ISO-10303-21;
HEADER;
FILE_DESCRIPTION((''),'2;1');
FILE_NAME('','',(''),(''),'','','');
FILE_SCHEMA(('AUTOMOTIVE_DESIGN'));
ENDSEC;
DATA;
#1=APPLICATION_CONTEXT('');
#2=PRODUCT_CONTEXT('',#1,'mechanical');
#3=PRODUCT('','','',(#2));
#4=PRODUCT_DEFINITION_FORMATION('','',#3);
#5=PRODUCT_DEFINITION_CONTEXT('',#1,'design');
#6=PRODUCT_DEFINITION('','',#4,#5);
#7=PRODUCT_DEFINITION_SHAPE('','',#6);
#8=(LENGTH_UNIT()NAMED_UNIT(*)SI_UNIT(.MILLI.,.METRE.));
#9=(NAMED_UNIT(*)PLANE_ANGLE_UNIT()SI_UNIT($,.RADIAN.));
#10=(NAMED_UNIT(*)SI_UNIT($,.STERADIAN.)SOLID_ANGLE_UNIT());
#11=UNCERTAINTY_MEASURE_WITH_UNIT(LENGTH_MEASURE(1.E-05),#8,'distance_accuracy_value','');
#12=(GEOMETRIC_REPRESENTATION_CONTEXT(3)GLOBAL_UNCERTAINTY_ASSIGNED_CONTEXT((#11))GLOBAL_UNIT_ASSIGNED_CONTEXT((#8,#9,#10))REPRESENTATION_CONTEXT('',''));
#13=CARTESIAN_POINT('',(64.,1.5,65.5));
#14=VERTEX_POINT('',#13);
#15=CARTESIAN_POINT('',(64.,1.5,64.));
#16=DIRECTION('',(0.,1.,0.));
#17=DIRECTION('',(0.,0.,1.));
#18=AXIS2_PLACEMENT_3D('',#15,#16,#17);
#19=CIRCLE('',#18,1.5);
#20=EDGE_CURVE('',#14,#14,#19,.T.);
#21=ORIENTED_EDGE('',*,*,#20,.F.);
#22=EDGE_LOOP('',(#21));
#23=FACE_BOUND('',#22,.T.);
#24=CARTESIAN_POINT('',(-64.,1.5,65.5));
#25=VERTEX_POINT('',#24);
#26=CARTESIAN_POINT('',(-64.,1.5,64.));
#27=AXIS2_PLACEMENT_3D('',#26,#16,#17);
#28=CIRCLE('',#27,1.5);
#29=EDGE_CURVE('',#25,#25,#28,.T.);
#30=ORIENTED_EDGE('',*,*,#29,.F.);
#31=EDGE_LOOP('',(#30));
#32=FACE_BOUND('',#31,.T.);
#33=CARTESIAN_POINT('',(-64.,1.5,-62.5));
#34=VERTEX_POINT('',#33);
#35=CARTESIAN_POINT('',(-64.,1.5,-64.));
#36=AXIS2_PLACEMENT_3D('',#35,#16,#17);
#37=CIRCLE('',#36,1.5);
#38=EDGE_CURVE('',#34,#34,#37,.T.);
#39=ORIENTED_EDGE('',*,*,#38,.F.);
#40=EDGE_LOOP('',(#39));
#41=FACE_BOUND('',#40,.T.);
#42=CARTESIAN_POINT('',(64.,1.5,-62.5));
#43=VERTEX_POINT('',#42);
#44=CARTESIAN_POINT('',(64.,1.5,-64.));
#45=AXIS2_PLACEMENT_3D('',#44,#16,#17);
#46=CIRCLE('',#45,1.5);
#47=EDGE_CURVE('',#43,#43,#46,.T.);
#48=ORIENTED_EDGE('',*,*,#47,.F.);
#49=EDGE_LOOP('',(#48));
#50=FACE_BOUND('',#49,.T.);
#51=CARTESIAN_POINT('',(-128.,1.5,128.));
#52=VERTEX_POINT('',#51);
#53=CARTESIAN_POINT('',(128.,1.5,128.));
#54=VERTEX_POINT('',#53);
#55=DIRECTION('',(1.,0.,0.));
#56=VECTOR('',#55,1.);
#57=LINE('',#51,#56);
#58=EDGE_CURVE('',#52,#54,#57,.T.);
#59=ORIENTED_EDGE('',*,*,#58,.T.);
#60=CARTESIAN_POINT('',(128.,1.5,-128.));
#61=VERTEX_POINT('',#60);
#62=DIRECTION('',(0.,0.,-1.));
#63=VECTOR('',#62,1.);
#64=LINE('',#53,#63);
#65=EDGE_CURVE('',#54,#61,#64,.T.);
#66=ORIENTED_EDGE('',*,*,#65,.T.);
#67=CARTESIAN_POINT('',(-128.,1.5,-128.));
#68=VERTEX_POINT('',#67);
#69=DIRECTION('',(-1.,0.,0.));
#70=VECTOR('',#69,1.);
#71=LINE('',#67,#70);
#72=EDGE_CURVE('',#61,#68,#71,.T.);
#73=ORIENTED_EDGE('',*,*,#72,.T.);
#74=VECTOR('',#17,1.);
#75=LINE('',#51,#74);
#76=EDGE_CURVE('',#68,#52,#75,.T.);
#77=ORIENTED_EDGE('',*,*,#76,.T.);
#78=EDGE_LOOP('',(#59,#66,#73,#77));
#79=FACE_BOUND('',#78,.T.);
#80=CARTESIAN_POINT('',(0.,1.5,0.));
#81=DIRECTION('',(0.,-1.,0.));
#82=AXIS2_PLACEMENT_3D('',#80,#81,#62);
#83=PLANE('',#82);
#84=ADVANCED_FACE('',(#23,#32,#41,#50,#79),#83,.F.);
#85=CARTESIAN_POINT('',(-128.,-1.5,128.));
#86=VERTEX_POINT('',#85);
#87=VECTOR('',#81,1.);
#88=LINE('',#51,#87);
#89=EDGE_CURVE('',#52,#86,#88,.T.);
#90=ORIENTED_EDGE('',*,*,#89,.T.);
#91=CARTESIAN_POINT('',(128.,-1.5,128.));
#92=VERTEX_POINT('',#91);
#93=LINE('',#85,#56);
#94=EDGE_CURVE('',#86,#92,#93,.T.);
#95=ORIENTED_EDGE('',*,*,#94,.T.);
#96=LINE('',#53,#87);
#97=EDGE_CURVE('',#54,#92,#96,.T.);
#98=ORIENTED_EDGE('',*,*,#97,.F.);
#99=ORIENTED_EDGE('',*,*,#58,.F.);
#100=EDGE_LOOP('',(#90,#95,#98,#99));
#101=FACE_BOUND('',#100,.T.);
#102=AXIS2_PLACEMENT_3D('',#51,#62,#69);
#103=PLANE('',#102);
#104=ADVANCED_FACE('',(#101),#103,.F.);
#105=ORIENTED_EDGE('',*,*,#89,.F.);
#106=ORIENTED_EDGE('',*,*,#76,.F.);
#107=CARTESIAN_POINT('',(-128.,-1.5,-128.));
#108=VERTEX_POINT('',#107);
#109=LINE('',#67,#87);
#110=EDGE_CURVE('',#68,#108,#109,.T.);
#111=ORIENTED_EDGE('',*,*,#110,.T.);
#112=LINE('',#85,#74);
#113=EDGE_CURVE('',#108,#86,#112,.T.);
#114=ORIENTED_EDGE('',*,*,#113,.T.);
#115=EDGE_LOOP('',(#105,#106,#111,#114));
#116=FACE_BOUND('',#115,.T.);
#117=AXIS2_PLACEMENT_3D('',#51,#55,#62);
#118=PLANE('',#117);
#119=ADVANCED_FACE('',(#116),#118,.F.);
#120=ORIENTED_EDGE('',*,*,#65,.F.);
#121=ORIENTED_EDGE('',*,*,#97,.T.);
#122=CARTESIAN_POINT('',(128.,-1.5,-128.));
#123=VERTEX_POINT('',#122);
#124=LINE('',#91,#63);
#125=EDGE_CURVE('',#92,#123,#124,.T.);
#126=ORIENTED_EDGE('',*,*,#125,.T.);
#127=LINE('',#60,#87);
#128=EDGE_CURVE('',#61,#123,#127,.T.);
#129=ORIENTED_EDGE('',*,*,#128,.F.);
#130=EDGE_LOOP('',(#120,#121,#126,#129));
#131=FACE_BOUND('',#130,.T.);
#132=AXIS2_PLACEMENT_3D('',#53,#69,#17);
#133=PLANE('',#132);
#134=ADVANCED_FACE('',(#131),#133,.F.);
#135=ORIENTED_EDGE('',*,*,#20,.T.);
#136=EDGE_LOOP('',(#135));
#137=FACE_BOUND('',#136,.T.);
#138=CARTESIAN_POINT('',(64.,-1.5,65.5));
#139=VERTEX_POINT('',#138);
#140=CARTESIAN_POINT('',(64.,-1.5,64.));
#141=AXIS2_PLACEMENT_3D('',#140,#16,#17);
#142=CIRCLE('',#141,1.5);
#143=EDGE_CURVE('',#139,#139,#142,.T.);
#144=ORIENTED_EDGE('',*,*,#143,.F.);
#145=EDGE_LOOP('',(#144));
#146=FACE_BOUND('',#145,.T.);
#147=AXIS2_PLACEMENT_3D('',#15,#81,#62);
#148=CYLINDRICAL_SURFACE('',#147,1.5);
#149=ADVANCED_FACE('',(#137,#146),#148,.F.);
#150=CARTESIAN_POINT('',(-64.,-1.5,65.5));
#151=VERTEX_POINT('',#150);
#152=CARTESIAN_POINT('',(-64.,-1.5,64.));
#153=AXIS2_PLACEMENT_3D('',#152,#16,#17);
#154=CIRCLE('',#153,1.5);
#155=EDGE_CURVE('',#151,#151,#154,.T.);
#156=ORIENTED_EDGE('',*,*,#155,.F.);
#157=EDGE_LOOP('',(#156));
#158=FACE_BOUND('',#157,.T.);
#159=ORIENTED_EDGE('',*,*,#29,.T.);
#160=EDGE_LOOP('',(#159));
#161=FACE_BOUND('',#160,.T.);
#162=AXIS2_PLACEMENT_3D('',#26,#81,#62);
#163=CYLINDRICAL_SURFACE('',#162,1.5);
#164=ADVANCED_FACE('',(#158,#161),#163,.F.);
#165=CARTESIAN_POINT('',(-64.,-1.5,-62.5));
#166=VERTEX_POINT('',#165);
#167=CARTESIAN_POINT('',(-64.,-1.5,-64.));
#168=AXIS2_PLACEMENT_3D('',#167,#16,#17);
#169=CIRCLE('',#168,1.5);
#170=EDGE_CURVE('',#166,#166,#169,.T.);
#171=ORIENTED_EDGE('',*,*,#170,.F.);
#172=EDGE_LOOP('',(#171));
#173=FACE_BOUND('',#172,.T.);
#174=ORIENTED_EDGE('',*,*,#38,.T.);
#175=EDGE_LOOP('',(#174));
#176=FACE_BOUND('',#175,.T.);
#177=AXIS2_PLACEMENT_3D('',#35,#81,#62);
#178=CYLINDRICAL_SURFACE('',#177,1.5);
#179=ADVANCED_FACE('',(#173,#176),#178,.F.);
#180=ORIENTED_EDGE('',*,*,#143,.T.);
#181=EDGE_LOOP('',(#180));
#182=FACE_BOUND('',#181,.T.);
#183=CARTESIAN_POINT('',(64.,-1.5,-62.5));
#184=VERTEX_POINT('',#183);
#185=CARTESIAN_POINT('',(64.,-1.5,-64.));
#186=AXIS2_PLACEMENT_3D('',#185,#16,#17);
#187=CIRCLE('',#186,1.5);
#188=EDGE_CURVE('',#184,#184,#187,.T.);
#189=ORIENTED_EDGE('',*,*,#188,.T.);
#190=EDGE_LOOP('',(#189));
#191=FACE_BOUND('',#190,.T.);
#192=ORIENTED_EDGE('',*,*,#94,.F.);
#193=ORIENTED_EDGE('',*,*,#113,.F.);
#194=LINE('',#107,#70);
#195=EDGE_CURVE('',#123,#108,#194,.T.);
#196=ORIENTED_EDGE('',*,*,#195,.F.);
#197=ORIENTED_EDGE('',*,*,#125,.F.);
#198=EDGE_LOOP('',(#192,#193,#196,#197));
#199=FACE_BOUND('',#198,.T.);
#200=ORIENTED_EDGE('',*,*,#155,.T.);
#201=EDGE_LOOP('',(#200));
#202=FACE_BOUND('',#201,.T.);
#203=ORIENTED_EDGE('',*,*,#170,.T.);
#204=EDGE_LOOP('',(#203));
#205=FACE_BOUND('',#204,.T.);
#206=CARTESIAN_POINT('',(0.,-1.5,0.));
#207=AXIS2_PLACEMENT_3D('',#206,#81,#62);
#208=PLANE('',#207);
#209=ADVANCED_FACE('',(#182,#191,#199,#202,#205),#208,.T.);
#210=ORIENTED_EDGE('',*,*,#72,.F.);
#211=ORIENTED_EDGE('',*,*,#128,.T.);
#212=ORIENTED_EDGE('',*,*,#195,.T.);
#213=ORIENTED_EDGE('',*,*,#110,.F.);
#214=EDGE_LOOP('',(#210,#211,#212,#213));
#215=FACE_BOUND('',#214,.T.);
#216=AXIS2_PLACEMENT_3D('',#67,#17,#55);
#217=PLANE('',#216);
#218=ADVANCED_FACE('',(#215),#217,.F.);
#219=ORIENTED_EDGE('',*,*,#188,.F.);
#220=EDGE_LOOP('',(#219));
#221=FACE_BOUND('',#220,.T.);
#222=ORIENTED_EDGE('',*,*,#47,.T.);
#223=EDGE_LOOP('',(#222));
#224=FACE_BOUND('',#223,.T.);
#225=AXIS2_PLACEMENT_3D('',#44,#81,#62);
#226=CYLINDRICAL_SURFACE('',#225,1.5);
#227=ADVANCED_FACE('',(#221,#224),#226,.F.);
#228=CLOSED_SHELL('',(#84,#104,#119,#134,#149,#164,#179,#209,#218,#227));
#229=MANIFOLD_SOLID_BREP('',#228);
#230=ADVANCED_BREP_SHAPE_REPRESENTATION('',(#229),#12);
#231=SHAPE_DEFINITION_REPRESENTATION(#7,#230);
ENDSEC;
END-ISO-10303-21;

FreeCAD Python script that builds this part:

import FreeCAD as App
import Part
import Sketcher
from FreeCAD import Vector

doc = App.newDocument("Part")
body = doc.addObject("PartDesign::Body", "Body")

sketch1 = body.newObject("Sketcher::SketchObject", "Sketch")
sketch1.AttachmentSupport = (doc.getObject("XZ_Plane"), [""])
sketch1.MapMode = "FlatFace"
sketch1.addGeometry([
    Part.LineSegment(Vector(-128, -128, 0), Vector(-128, 128, 0)),
    Part.LineSegment(Vector(-128, 128, 0), Vector(128, 128, 0)),
    Part.LineSegment(Vector(128, 128, 0), Vector(128, -128, 0)),
    Part.LineSegment(Vector(128, -128, 0), Vector(-128, -128, 0)),
    Part.Circle(Vector(-64, 64, 0), Vector(0, 0, 1), 1.5),
    Part.Circle(Vector(64, 64, 0), Vector(0, 0, 1), 1.5),
    Part.Circle(Vector(-64, -64, 0), Vector(0, 0, 1), 1.5),
    Part.Circle(Vector(64, -64, 0), Vector(0, 0, 1), 1.5),
], False)
sketch1.addConstraint([
    Sketcher.Constraint("Coincident", 0, 2, 1, 1),
    Sketcher.Constraint("Coincident", 1, 2, 2, 1),
    Sketcher.Constraint("Coincident", 2, 2, 3, 1),
    Sketcher.Constraint("Coincident", 3, 2, 0, 1),
    Sketcher.Constraint("Vertical", 0),
    Sketcher.Constraint("Horizontal", 1),
    Sketcher.Constraint("Vertical", 2),
    Sketcher.Constraint("Horizontal", 3),
    Sketcher.Constraint("Equal", 4, 5),
    Sketcher.Constraint("Equal", 5, 6),
    Sketcher.Constraint("Equal", 6, 7),
    Sketcher.Constraint("Symmetric", 5, 3, 6, 3, -1, 1),
    Sketcher.Constraint("Symmetric", 4, 3, 7, 3, -1, 1),
    Sketcher.Constraint("Symmetric", 0, 2, 2, 2, -1, 1),
    Sketcher.Constraint("Symmetric", 4, 3, 5, 3, -2),
    Sketcher.Constraint("Equal", 3, 0),
    Sketcher.Constraint("Diameter", 4, 3.0),
    Sketcher.Constraint("DistanceX", 1, 1, 1, 2, 256.0),
    Sketcher.Constraint("DistanceX", 4, 3, -1, 1, 64.0),
    Sketcher.Constraint("DistanceY", -1, 1, 4, 3, 64.0),
])
pad1 = body.newObject("PartDesign::Pad", "Pad")
pad1.Profile = sketch1
pad1.Length = 3
pad1.Midplane = True

doc.recompute()
